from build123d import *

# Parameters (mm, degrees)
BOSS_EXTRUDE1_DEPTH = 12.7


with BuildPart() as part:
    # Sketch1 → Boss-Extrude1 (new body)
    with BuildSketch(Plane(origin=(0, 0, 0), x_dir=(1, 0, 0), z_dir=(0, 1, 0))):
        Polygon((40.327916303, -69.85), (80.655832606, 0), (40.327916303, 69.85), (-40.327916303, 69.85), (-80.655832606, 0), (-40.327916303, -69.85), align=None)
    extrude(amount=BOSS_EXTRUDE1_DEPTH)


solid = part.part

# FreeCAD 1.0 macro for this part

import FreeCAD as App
import Part
import Sketcher

V = App.Vector
Q = App.Units.Quantity

doc = App.newDocument("Part")
body = doc.addObject("PartDesign::Body", "Body")

# Sketch on XZ plane
sketch1 = body.newObject("Sketcher::SketchObject", "Sketch")
sketch1.AttachmentSupport = (doc.getObject("XZ_Plane"), [""])
sketch1.MapMode = "FlatFace"
sketch1.addGeometry(Part.LineSegment(V(40.327916, 69.85, 0), V(80.655833, 0, 0)), False)
sketch1.addGeometry(Part.LineSegment(V(80.655833, 0, 0), V(40.327916, -69.85, 0)), False)
sketch1.addGeometry(Part.LineSegment(V(40.327916, -69.85, 0), V(-40.327916, -69.85, 0)), False)
sketch1.addGeometry(Part.LineSegment(V(-40.327916, -69.85, 0), V(-80.655833, 0, 0)), False)
sketch1.addGeometry(Part.LineSegment(V(-80.655833, 0, 0), V(-40.327916, 69.85, 0)), False)
sketch1.addGeometry(Part.LineSegment(V(-40.327916, 69.85, 0), V(40.327916, 69.85, 0)), False)
sketch1.addConstraint(Sketcher.Constraint("Coincident", 0, 2, 1, 1))
sketch1.addConstraint(Sketcher.Constraint("Coincident", 1, 2, 2, 1))
sketch1.addConstraint(Sketcher.Constraint("Coincident", 2, 2, 3, 1))
sketch1.addConstraint(Sketcher.Constraint("Coincident", 3, 2, 4, 1))
sketch1.addConstraint(Sketcher.Constraint("Coincident", 4, 2, 5, 1))
sketch1.addConstraint(Sketcher.Constraint("Coincident", 5, 2, 0, 1))
sketch1.addConstraint(Sketcher.Constraint("Horizontal", 2))
sketch1.addConstraint(Sketcher.Constraint("Horizontal", 5))
sketch1.addConstraint(Sketcher.Constraint("Symmetric", 0, 2, 3, 2, -1, 1))
sketch1.addConstraint(Sketcher.Constraint("Symmetric", 1, 2, 4, 2, -1, 1))
sketch1.addConstraint(Sketcher.Constraint("PointOnObject", 0, 2, -1))
sketch1.addConstraint(Sketcher.Constraint("Parallel", 0, 3))
sketch1.addConstraint(Sketcher.Constraint("Vertical", 2, 2, 4, 2))
sketch1.addConstraint(Sketcher.Constraint("Angle", 0, Q("-60 deg")))
sketch1.addConstraint(Sketcher.Constraint("DistanceY", 2, 2, 4, 2, Q("5.5 in")))
sketch1.addConstraint(Sketcher.Constraint("DistanceX", 2, 2, 2, 1, Q("80.655833 mm")))
pad1 = body.newObject("PartDesign::Pad", "Pad")
pad1.Profile = sketch1
pad1.Length = Q("0.5 in")
pad1.Reversed = True

doc.recompute()
